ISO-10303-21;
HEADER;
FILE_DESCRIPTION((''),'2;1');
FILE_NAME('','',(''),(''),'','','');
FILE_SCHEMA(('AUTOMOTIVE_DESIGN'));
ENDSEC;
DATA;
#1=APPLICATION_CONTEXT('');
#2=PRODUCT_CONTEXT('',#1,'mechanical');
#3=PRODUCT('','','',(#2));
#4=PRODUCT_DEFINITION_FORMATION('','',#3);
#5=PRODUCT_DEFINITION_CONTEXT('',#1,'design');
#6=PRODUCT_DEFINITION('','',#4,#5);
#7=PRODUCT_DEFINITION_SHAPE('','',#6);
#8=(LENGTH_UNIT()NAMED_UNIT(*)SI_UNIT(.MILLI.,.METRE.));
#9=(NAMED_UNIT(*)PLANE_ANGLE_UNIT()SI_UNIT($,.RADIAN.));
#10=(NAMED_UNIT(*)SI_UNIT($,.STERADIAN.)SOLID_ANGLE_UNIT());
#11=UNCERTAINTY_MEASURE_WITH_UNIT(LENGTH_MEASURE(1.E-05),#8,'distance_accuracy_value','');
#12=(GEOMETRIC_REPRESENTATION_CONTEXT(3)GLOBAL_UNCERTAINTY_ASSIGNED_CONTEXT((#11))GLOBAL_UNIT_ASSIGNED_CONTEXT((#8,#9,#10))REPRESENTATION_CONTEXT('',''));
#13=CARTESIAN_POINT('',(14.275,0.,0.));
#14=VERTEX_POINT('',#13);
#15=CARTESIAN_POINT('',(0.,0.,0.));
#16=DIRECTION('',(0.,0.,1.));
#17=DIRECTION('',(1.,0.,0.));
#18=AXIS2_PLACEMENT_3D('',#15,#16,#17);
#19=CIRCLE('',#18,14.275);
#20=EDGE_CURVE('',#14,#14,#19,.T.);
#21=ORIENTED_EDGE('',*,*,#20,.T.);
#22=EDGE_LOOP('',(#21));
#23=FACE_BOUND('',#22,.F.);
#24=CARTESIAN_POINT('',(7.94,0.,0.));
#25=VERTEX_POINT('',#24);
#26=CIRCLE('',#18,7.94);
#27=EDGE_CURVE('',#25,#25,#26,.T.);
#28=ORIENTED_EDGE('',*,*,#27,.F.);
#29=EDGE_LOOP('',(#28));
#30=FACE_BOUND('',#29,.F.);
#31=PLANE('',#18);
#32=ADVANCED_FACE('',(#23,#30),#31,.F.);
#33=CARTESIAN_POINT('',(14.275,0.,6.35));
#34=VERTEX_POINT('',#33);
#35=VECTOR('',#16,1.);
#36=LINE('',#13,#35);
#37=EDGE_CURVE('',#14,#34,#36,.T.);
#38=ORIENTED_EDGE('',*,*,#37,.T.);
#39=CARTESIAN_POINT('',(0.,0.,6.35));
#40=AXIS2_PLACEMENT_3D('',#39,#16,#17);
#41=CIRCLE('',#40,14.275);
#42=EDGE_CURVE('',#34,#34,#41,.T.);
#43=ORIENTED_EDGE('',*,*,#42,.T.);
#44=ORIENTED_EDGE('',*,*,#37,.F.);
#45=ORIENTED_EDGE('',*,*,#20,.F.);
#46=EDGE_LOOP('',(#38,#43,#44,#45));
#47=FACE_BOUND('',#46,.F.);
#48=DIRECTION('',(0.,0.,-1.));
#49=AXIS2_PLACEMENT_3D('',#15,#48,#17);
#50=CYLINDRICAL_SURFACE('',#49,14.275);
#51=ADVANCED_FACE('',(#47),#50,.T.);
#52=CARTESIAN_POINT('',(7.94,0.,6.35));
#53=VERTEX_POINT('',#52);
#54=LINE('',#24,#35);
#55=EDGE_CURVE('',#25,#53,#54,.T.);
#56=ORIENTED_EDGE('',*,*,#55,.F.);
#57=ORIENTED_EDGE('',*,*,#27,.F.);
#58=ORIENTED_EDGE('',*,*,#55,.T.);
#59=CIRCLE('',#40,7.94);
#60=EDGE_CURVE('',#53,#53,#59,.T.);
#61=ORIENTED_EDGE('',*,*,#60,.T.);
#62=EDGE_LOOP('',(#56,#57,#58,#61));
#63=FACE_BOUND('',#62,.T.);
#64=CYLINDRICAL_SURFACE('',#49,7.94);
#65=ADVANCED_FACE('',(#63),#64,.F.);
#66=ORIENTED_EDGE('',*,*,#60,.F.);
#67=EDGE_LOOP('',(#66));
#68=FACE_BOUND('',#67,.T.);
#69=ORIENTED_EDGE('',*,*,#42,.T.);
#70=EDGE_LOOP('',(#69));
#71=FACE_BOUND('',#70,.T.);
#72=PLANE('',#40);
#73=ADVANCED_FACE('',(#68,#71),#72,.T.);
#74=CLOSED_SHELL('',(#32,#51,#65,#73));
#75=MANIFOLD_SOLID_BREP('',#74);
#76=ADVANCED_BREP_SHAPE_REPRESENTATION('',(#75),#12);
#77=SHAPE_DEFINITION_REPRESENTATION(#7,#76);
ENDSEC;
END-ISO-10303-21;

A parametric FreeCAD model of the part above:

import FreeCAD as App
import Part
import Sketcher
from FreeCAD import Vector
Q = App.Units.Quantity

doc = App.newDocument("Part")
body = doc.addObject("PartDesign::Body", "Body")

sketch1 = doc.addObject("Sketcher::SketchObject", "Sketch")
body.addObject(sketch1)
sketch1.AttachmentSupport = (doc.XY_Plane, [""])
sketch1.MapMode = "FlatFace"
sketch1.addGeometry(Part.Circle(Vector(0, 0, 0), Vector(0, 0, 1), 14), False)
sketch1.addGeometry(Part.Circle(Vector(0, 0, 0), Vector(0, 0, 1), 8), False)
sketch1.addConstraint(Sketcher.Constraint("Coincident", 0, 3, -1, 1))
sketch1.addConstraint(Sketcher.Constraint("Coincident", 1, 3, -1, 1))
sketch1.addConstraint(Sketcher.Constraint("Diameter", 1, Q("0.6252 in")))
sketch1.addConstraint(Sketcher.Constraint("Diameter", 0, 28.55))
pad1 = doc.addObject("PartDesign::Pad", "Pad")
body.addObject(pad1)
pad1.Profile = sketch1
pad1.Length = Q("0.25 in")

doc.recompute()
